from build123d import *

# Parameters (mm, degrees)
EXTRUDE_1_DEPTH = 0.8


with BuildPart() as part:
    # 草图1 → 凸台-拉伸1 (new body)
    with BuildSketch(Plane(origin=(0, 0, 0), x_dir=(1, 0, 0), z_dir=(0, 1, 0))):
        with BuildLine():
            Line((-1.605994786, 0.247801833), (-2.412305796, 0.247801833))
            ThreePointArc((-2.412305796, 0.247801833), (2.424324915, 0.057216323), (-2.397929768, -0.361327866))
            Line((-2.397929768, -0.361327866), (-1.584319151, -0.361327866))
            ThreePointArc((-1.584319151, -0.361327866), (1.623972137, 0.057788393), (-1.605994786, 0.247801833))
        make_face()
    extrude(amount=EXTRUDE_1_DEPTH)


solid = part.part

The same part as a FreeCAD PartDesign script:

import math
import FreeCAD as App
import Part
import Sketcher
from FreeCAD import Vector
Q = App.Units.Quantity

doc = App.newDocument("Part")
body = doc.addObject("PartDesign::Body", "Body")

# Sketch on XZ plane
sketch1 = body.newObject("Sketcher::SketchObject", "Sketch")
sketch1.AttachmentSupport = (doc.getObject("XZ_Plane"), [""])
sketch1.MapMode = "FlatFace"
sketch1.addGeometry([
    Part.LineSegment(Vector(-2.4, -0.2, 0), Vector(-1.6, -0.2, 0)),
    Part.ArcOfCircle(Part.Circle(Vector(0, 0, 0), Vector(0, 0, 1), 1.6), math.radians(-171), math.radians(167)),
    Part.LineSegment(Vector(-1.6, 0.4, 0), Vector(-2.4, 0.4, 0)),
    Part.ArcOfCircle(Part.Circle(Vector(0, 0, 0), Vector(0, 0, 1), 2.4), math.radians(-174), math.radians(171)),
], False)
sketch1.addConstraint([
    Sketcher.Constraint("Coincident", 0, 2, 1, 1),
    Sketcher.Constraint("Coincident", 1, 2, 2, 1),
    Sketcher.Constraint("Coincident", 2, 2, 3, 2),
    Sketcher.Constraint("Coincident", 3, 1, 0, 1),
    Sketcher.Constraint("Horizontal", 0),
    Sketcher.Constraint("Horizontal", 2),
    Sketcher.Constraint("Coincident", 1, 3, -1, 1),
    Sketcher.Constraint("Coincident", 3, 3, -1, 1),
    Sketcher.Constraint("Radius", 1, Q("1.625 mm")),
    Sketcher.Constraint("Radius", 3, Q("2.425 mm")),
    Sketcher.Constraint("DistanceX", 0, 1, 0, 2, Q("0.806311 mm")),
    Sketcher.Constraint("DistanceX", 2, 2, 2, 1, Q("0.813611 mm")),
])
pad1 = body.newObject("PartDesign::Pad", "Pad")
pad1.Profile = sketch1
pad1.Length = 0.8
pad1.Reversed = True

doc.recompute()
